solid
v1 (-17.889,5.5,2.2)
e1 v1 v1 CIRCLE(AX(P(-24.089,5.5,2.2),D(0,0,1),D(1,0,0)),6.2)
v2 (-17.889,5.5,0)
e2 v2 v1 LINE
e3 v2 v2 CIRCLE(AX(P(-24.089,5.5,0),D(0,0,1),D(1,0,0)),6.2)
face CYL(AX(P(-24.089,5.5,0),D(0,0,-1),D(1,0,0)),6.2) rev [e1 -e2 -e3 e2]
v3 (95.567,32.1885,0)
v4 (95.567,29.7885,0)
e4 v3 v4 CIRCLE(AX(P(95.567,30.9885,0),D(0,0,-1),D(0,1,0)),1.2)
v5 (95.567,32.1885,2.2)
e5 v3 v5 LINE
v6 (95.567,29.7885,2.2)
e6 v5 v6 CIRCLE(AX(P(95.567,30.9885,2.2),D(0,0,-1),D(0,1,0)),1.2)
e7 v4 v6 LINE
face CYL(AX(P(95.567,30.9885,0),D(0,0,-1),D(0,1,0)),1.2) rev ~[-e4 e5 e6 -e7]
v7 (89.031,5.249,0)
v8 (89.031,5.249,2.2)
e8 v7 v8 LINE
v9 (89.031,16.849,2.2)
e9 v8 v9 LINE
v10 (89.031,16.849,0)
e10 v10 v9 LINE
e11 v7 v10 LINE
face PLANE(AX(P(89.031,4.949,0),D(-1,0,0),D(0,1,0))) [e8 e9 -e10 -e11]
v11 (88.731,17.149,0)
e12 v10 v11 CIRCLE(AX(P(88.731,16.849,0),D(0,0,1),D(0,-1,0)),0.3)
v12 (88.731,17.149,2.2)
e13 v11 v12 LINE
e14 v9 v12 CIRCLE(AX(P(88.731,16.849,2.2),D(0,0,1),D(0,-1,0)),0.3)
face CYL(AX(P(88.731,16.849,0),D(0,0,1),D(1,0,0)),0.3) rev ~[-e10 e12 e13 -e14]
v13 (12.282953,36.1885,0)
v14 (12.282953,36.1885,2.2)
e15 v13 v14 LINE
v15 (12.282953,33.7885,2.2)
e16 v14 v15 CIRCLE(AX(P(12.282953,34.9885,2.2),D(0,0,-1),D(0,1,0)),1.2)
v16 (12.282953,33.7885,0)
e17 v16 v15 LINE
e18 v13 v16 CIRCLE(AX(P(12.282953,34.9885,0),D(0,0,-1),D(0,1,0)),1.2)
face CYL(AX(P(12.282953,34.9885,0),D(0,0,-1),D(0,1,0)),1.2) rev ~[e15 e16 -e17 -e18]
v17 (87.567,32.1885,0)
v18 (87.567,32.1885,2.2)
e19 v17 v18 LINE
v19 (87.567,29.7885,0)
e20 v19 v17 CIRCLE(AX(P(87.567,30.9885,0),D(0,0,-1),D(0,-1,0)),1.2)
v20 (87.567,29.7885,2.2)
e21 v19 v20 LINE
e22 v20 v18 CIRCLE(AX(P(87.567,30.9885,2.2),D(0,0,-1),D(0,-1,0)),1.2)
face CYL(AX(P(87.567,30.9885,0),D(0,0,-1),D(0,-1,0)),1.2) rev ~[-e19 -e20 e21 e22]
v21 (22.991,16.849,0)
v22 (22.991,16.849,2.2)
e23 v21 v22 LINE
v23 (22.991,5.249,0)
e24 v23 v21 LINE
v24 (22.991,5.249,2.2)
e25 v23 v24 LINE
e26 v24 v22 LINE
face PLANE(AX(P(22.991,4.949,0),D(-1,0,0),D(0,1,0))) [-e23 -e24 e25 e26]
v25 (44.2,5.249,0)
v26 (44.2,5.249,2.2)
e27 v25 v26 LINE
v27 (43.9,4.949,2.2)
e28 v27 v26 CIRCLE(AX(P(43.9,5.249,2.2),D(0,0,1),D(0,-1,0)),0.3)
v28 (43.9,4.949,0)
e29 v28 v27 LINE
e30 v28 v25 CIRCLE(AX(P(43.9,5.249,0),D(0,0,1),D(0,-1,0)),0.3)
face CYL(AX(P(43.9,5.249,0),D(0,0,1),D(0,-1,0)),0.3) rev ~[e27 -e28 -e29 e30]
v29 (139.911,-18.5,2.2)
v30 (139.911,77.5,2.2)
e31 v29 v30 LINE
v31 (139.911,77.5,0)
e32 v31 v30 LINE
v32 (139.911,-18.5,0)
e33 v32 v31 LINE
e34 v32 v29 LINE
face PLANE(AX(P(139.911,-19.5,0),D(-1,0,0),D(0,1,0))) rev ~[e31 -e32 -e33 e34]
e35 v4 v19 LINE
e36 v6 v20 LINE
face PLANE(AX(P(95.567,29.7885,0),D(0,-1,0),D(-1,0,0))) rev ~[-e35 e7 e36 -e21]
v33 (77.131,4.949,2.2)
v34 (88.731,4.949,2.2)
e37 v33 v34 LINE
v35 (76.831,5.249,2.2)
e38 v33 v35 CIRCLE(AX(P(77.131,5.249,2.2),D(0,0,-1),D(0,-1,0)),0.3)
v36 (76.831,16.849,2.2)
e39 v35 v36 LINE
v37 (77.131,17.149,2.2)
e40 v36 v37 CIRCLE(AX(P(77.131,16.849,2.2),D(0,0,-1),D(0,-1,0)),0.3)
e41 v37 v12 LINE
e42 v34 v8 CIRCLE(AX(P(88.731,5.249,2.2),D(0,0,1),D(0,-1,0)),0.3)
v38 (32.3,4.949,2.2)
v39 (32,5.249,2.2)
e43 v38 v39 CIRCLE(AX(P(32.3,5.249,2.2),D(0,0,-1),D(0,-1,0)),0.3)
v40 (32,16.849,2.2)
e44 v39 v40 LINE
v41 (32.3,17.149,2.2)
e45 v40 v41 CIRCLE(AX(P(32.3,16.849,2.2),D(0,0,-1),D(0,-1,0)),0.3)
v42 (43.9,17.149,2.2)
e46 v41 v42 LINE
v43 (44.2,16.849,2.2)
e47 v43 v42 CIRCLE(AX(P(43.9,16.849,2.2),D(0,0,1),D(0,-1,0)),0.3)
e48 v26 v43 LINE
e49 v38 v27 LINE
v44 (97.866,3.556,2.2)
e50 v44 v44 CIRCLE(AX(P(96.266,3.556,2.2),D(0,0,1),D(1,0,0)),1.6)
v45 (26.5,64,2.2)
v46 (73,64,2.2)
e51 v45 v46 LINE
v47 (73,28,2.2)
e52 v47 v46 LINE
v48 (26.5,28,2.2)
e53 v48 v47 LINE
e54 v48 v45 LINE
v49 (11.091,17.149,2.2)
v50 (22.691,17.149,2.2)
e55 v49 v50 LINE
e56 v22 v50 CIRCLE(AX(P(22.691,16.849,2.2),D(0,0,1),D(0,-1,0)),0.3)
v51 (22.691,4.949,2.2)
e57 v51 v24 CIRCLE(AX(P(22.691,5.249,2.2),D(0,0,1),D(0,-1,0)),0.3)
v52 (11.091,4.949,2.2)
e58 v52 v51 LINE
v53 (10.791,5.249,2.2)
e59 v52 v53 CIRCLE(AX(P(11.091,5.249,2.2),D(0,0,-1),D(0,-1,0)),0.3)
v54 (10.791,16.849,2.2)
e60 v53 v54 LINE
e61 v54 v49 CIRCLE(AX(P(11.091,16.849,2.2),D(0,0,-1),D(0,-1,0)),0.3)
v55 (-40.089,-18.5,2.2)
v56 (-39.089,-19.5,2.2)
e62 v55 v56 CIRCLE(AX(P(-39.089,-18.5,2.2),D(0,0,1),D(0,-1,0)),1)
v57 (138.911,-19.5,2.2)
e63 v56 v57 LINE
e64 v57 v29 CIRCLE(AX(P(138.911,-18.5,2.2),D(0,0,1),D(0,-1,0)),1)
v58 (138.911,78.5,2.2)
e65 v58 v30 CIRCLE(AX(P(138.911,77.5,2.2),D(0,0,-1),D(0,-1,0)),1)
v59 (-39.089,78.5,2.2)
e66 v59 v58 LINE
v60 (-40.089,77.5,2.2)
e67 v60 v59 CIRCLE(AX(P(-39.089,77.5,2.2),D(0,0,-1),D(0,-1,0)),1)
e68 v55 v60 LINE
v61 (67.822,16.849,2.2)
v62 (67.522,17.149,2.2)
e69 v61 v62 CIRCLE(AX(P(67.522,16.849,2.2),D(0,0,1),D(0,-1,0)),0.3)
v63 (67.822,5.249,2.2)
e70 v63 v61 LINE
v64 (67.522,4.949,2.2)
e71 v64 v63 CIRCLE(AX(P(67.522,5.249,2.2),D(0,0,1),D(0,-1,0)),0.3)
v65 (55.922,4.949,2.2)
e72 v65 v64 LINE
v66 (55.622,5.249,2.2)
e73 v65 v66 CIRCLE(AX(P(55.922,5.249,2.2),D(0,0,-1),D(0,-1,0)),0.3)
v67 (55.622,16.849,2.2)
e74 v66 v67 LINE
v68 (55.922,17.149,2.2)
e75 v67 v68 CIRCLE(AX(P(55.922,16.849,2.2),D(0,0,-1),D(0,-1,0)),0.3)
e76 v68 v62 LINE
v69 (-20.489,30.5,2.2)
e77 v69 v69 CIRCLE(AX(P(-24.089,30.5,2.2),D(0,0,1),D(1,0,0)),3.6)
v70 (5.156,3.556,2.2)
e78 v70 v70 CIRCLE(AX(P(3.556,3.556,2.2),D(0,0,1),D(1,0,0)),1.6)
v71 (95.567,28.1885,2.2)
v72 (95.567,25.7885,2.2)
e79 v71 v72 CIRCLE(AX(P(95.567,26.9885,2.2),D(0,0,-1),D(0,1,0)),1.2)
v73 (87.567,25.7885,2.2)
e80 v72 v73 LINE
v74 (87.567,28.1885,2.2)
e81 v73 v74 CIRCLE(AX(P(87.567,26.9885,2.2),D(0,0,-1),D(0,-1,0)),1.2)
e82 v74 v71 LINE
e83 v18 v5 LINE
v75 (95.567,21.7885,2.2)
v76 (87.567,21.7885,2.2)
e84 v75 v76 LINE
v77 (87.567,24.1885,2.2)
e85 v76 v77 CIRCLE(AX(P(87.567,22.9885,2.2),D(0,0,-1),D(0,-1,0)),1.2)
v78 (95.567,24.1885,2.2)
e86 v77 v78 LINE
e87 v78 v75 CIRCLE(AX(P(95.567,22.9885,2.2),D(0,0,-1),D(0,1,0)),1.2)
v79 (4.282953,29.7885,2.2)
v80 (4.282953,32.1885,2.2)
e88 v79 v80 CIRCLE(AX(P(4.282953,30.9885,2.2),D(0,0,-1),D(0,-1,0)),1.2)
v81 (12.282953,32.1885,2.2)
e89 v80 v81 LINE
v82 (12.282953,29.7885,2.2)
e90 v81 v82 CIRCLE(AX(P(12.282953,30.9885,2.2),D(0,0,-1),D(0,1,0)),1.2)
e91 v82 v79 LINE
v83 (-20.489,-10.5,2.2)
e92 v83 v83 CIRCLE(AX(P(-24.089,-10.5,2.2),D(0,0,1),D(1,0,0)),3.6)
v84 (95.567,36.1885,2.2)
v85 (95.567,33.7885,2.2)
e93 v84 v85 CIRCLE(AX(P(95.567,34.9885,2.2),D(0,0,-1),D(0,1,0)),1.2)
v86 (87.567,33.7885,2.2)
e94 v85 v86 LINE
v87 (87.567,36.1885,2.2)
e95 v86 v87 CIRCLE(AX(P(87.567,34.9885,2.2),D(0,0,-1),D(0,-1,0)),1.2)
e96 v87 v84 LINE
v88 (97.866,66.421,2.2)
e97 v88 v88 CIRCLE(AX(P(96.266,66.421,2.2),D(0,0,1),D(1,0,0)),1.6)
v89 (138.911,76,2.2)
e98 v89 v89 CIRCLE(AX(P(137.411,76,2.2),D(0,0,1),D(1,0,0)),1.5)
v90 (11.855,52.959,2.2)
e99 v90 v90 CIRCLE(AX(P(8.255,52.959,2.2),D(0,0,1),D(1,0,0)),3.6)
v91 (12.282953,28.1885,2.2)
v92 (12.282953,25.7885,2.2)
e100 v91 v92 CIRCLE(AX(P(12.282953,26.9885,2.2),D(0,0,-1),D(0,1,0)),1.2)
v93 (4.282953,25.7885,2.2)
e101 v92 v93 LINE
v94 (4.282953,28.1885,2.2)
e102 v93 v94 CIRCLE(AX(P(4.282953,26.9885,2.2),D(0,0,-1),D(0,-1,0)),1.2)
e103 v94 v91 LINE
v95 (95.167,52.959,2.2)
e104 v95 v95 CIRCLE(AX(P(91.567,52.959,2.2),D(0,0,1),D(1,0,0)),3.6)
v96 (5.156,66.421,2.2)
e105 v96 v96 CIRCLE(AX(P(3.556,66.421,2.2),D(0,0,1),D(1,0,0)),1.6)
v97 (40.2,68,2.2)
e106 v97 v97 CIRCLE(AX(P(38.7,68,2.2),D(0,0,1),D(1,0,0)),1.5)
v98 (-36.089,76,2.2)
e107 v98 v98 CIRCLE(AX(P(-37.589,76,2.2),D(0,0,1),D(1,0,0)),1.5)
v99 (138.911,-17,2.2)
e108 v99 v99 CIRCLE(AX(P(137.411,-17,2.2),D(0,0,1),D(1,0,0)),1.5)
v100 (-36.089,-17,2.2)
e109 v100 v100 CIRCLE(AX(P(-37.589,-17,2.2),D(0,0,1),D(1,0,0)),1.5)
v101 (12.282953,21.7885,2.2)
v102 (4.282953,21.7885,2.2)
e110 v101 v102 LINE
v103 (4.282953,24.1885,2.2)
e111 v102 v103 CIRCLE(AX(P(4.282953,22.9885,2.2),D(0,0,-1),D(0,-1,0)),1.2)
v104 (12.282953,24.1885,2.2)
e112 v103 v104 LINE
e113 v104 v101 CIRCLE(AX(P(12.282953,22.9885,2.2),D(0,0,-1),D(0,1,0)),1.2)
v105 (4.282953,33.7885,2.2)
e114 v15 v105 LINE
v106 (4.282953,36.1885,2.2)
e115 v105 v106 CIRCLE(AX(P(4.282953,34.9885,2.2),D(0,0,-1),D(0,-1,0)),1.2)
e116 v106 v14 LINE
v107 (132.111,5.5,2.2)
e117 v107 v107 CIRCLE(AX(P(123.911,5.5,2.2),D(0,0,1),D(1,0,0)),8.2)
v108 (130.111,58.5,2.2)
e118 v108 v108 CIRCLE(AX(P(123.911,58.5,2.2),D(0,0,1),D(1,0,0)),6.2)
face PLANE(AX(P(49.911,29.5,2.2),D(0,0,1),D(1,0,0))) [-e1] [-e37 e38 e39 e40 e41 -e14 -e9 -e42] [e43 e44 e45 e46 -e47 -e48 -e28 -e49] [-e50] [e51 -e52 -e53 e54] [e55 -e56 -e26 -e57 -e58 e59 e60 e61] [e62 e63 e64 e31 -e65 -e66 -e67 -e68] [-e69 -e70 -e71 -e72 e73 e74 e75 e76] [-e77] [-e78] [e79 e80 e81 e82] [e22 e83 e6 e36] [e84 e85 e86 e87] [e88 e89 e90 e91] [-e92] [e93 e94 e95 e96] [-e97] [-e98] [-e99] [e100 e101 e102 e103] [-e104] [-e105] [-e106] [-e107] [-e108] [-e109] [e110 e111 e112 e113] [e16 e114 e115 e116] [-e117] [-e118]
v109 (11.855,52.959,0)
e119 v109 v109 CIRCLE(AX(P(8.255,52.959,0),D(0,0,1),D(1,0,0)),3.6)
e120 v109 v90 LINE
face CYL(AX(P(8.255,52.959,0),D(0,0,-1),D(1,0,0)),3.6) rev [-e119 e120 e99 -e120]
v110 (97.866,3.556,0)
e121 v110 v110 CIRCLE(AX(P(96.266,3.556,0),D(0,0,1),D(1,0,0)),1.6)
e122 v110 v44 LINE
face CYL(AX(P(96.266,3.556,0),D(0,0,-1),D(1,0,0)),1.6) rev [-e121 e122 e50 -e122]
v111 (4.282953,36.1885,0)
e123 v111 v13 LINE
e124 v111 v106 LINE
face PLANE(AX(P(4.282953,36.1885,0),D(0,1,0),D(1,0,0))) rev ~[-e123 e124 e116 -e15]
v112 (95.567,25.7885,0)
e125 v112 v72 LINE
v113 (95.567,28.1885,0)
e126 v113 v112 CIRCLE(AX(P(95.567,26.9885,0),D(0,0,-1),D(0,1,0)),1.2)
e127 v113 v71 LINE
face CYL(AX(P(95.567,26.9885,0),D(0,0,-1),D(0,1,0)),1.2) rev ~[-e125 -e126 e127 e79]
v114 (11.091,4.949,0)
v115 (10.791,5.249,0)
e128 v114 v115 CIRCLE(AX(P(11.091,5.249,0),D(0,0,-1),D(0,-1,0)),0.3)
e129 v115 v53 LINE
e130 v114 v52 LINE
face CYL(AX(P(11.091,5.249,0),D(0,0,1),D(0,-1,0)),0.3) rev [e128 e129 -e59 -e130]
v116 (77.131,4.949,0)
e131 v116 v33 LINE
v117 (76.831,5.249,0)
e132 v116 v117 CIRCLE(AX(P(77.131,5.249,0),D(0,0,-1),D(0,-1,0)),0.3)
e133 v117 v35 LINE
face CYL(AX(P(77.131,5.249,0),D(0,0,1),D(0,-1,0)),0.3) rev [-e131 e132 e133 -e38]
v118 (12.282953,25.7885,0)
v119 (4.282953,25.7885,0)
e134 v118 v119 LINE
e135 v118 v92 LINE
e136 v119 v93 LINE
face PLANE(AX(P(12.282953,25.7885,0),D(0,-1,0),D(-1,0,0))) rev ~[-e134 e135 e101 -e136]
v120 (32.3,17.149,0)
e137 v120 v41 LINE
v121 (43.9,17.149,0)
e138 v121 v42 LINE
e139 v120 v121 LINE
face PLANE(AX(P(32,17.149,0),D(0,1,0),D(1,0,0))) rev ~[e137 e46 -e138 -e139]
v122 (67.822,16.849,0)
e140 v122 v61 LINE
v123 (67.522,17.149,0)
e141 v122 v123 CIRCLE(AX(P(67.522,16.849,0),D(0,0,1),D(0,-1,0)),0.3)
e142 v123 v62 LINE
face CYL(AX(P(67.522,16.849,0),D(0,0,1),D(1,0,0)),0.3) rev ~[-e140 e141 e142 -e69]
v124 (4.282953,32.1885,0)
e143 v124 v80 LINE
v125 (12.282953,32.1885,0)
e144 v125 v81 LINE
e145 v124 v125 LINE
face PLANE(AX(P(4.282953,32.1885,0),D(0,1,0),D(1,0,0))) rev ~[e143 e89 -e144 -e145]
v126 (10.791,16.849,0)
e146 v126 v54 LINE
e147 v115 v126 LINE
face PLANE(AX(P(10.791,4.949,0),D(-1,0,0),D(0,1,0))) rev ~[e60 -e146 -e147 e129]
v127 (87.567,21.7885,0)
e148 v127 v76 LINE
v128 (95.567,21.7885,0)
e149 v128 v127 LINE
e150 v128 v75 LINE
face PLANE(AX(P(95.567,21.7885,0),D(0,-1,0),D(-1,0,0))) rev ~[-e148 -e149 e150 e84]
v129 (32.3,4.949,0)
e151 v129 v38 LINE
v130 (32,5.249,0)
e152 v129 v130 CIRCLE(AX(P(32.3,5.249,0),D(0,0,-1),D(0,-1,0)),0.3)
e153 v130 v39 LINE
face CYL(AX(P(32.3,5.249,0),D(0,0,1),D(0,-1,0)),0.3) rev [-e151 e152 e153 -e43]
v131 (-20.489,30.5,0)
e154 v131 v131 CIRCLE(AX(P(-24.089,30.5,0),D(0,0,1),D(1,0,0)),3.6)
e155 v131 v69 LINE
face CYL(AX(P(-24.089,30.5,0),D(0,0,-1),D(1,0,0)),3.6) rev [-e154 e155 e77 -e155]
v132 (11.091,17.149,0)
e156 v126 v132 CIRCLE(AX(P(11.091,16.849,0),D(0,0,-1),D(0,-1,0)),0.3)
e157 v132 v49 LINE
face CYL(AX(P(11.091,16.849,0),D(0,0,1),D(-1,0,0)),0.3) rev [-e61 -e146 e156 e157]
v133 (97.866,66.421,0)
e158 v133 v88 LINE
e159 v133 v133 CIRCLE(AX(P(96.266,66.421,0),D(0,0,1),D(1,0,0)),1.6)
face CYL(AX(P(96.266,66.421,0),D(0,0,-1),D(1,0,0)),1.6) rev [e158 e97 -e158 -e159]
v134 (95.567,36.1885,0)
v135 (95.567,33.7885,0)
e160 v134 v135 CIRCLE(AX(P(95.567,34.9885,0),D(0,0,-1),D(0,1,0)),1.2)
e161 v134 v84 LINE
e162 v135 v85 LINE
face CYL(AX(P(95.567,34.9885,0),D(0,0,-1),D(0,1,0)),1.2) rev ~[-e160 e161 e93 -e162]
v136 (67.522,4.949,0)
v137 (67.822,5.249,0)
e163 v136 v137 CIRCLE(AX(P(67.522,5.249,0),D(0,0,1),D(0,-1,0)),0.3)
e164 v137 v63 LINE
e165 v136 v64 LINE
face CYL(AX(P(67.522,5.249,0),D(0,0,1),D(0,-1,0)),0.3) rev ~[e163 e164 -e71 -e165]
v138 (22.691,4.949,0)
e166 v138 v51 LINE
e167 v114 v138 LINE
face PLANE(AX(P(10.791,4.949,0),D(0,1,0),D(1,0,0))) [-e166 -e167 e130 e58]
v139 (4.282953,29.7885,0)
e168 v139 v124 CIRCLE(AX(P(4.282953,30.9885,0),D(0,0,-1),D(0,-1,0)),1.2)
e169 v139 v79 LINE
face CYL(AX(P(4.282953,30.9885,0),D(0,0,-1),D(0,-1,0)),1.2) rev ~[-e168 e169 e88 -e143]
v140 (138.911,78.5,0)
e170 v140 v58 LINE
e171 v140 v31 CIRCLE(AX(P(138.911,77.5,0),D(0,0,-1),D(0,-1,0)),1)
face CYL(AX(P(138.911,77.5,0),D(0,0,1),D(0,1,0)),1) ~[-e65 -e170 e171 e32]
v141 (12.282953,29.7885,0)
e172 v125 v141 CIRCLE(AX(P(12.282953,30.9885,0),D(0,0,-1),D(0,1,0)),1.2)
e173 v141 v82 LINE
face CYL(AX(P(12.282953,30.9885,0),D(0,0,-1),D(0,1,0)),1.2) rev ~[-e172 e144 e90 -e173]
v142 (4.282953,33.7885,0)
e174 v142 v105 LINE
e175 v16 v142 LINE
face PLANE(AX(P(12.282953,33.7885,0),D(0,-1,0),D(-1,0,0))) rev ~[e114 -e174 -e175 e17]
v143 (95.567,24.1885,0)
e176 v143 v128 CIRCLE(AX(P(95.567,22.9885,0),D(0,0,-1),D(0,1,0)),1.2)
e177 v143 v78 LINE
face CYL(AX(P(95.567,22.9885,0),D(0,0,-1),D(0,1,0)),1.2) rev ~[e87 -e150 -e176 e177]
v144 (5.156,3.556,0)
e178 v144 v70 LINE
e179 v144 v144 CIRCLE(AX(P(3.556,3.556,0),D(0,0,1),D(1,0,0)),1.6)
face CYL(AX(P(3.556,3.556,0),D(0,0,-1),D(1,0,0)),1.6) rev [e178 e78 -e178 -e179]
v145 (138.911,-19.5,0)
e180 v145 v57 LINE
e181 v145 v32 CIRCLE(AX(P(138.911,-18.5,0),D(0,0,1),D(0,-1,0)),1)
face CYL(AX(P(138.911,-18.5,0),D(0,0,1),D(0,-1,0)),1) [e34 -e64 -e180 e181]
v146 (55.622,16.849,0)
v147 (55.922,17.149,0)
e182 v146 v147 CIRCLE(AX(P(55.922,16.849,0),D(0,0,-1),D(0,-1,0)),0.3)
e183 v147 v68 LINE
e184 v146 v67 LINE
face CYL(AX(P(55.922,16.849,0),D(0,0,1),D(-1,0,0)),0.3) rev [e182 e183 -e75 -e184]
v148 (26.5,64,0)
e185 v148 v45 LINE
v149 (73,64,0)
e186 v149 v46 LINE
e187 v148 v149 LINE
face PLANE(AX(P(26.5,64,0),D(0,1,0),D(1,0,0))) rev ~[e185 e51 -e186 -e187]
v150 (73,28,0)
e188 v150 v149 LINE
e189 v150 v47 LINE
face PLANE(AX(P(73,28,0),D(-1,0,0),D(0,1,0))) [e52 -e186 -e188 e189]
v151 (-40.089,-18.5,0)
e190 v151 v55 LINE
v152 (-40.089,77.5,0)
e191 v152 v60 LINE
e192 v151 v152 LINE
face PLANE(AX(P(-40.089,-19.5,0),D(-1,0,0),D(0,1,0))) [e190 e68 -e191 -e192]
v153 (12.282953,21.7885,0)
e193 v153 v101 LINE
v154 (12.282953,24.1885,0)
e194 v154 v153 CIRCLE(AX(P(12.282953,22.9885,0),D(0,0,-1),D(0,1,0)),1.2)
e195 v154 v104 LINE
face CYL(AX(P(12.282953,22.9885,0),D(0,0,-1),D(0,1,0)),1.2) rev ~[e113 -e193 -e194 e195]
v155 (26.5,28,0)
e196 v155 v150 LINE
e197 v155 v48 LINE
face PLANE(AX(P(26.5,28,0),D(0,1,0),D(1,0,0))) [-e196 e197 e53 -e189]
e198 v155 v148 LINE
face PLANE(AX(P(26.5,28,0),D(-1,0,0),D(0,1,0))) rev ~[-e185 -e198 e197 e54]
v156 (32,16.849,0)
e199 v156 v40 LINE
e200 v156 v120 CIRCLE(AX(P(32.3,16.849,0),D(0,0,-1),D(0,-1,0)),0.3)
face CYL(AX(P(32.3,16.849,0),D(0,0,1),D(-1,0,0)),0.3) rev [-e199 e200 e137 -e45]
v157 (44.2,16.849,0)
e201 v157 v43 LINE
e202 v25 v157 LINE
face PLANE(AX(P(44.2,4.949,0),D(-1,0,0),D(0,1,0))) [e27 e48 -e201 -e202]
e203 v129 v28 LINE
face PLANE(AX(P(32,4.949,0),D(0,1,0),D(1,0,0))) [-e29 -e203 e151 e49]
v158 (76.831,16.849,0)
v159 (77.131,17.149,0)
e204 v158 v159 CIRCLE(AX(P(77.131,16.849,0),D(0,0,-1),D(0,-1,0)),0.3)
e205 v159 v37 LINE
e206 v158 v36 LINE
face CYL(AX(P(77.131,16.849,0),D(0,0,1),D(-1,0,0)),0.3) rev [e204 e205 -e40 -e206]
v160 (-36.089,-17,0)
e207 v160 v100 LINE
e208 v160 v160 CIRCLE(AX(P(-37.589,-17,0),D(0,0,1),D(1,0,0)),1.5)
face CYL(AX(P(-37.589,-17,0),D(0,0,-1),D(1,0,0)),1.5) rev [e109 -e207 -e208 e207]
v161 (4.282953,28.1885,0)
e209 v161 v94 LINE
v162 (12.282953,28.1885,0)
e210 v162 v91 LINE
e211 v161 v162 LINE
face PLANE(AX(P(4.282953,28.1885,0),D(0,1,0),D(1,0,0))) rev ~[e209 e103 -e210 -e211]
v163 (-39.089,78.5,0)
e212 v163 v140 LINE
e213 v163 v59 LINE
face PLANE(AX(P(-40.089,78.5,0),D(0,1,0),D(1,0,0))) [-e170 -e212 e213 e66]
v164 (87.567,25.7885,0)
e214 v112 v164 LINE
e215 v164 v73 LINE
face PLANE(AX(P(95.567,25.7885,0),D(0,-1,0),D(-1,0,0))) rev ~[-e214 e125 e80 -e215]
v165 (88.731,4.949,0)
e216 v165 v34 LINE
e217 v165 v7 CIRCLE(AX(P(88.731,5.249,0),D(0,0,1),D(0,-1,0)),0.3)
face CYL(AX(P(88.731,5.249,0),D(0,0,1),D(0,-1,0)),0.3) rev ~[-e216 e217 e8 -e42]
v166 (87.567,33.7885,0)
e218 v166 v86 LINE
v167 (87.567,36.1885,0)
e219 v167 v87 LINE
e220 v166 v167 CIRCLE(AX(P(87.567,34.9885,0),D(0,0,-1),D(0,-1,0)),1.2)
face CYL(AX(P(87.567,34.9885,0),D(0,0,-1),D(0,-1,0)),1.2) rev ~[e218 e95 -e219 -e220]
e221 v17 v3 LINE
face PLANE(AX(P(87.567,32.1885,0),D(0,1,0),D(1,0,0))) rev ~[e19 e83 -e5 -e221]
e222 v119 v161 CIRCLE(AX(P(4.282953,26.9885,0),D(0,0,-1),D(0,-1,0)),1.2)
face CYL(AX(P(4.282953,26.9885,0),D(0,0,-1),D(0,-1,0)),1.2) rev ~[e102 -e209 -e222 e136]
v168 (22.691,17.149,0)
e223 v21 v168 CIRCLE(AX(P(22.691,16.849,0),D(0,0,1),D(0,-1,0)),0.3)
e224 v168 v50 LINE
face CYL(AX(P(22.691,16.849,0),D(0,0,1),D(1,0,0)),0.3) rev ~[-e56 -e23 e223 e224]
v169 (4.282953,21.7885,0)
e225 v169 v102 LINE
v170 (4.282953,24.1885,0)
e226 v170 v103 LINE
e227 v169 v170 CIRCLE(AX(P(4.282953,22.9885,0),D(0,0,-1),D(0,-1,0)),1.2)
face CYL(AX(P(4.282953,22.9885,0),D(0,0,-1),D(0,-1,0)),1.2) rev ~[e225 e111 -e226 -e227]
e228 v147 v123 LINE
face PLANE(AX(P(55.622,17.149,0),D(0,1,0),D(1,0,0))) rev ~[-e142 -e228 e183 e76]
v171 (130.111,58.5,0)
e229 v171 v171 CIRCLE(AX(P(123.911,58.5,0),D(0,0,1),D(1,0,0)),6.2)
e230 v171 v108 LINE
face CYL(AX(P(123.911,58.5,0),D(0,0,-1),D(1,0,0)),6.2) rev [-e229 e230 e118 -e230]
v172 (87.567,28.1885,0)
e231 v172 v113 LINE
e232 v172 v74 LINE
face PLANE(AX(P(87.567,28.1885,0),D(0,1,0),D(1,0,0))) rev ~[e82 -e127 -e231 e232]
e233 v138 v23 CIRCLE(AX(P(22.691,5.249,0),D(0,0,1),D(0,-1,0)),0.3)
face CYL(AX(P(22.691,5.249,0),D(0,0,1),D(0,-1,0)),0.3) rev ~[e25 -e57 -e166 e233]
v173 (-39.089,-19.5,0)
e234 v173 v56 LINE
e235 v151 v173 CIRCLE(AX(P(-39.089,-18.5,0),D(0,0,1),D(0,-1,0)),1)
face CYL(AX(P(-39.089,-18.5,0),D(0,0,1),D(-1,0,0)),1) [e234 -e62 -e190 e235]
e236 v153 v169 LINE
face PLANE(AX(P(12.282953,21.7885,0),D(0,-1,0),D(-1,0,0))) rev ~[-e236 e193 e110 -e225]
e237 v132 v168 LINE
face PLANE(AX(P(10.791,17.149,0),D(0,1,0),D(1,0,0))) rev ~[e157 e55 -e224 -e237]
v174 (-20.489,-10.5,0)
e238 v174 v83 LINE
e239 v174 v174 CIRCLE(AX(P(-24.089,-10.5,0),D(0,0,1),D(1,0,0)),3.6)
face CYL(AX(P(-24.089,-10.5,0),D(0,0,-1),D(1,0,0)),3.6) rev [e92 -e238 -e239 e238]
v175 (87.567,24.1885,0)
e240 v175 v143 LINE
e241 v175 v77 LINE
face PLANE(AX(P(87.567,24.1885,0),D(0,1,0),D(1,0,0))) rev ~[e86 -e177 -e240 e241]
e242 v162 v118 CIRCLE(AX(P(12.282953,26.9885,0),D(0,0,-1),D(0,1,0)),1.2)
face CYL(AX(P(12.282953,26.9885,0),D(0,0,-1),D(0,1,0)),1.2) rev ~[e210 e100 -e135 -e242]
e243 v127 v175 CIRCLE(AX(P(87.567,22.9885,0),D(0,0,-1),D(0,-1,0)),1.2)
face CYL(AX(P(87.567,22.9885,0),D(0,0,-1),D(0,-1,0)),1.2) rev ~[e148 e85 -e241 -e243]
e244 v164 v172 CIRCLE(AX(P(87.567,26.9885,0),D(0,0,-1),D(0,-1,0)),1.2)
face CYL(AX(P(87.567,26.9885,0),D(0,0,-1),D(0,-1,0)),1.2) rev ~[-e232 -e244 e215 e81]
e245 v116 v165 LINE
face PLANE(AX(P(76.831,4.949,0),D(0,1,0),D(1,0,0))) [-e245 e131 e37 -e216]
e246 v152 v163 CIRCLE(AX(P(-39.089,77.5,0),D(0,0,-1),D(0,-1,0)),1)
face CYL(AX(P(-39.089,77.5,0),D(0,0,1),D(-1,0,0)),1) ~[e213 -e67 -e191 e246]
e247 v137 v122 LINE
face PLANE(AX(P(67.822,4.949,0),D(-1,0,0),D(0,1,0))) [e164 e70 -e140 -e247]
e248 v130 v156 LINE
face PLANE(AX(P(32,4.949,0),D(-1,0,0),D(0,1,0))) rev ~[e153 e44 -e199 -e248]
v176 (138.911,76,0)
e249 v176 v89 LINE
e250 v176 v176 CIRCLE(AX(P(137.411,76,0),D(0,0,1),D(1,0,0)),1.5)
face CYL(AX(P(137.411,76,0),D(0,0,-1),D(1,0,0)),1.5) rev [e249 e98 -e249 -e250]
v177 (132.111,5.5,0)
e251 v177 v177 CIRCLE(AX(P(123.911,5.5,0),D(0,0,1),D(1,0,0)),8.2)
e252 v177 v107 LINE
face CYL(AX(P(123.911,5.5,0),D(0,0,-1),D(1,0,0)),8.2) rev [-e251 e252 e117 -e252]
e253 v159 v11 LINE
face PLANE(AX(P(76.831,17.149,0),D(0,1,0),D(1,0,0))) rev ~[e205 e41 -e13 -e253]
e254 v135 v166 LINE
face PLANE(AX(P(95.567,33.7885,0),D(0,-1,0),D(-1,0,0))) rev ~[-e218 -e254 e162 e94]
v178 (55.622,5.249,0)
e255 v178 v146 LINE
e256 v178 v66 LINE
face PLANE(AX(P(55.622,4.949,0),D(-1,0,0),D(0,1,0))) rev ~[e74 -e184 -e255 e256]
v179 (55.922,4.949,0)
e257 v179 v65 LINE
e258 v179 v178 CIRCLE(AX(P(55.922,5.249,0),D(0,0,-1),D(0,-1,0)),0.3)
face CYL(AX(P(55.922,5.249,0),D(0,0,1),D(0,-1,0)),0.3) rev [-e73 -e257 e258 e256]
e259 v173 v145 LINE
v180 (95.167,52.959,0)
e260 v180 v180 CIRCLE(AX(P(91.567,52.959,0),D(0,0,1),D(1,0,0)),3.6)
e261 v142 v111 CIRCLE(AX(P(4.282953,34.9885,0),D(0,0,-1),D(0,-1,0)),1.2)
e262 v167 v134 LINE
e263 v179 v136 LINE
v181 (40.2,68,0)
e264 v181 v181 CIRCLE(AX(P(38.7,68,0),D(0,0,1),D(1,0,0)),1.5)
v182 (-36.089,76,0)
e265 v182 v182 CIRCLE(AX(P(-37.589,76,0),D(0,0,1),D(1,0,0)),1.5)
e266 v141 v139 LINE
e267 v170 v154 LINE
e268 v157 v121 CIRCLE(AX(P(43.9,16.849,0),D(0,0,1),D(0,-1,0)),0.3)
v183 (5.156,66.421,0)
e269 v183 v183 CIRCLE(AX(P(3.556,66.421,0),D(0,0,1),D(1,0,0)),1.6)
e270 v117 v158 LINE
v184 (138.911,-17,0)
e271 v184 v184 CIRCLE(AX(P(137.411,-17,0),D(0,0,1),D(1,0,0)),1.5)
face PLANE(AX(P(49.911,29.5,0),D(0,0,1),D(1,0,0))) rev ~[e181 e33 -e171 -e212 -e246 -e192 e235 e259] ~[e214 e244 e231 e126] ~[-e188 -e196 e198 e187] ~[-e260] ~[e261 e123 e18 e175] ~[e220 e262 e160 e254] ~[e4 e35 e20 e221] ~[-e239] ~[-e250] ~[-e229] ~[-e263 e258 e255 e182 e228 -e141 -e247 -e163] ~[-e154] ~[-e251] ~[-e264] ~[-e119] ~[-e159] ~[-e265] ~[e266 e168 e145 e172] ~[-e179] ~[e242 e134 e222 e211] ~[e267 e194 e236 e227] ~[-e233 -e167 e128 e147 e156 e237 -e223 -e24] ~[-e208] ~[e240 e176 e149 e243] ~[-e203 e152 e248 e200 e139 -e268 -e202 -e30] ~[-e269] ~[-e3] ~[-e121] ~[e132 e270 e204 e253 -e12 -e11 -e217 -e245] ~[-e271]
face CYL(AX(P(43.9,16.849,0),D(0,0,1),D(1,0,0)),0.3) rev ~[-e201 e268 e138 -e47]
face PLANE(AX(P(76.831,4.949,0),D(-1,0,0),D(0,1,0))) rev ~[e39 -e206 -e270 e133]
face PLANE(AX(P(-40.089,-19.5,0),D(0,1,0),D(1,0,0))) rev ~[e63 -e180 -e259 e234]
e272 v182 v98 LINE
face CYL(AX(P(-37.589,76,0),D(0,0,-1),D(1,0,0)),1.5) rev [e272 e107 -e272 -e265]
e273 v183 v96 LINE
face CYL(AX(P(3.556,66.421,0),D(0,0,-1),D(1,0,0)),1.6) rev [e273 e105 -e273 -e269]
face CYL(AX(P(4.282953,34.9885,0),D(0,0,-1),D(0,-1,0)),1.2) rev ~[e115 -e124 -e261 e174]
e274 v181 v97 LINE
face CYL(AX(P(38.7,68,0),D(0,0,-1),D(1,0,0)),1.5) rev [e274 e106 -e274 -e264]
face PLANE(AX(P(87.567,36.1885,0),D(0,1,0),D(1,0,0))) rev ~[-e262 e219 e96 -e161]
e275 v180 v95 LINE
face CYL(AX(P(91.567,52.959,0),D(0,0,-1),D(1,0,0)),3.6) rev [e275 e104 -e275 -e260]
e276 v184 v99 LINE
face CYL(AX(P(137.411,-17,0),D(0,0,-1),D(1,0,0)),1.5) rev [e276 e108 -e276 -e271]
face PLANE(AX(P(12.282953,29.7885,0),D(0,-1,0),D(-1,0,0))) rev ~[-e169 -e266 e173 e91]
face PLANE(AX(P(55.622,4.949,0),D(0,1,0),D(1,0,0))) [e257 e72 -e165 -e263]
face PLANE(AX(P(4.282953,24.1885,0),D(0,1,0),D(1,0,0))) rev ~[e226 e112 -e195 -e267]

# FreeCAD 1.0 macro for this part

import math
import FreeCAD as App
import Part
import Sketcher
Q = App.Units.Quantity


def edges_at(feature, points):
    """Names of the edges that pass closest to the given points."""
    edges = feature.Shape.Edges
    near = lambda p: min(range(len(edges)), key=lambda i: edges[i].distToShape(Part.Vertex(*p))[0])
    return sorted({f"Edge{near(p) + 1}" for p in points})

doc = App.newDocument("Part")
params = doc.addObject("Spreadsheet::Sheet", "Params")
for row, (alias, value) in enumerate([
    ("sketch1_diameter", "3 mm"),
    ("sketch1_diameter2", "7.2 mm"),
    ("sketch1_diameter3", "3.2 mm"),
    ("sketch1_diameter4", "12.4 mm"),
    ("sketch1_diameter5", "16.4 mm"),
    ("pad1_length", "2.2 mm"),
    ("fillet_radius", "1 mm"),
    ("fillet2_radius", "0.3 mm"),
], start=1):
    params.set(f"A{row}", alias)
    params.set(f"B{row}", "=" + value)
    params.setAlias(f"B{row}", alias)

body = doc.addObject("PartDesign::Body", "Body")

# Sketch on XY plane
sketch1 = body.newObject("Sketcher::SketchObject", "Sketch")
sketch1.AttachmentSupport = (doc.getObject("XY_Plane"), [""])
sketch1.MapMode = "FlatFace"
sketch1.addGeometry(Part.LineSegment(App.Vector(-40.1, 78.5, 0), App.Vector(-40.1, -19.5, 0)), False)
sketch1.addGeometry(Part.LineSegment(App.Vector(-40.1, -19.5, 0), App.Vector(139.9, -19.5, 0)), False)
sketch1.addGeometry(Part.LineSegment(App.Vector(139.9, -19.5, 0), App.Vector(139.9, 78.5, 0)), False)
sketch1.addGeometry(Part.LineSegment(App.Vector(139.9, 78.5, 0), App.Vector(-40.1, 78.5, 0)), False)
sketch1.addGeometry(Part.Circle(App.Vector(-37.6, -17, 0), App.Vector(0, 0, 1), 1.5), False)
sketch1.addGeometry(Part.Circle(App.Vector(-24.1, -10.5, 0), App.Vector(0, 0, 1), 3.6), False)
sketch1.addGeometry(Part.Circle(App.Vector(3.6, 3.6, 0), App.Vector(0, 0, 1), 1.6), False)
sketch1.addGeometry(Part.Circle(App.Vector(-24.1, 5.5, 0), App.Vector(0, 0, 1), 6.2), False)
sketch1.addGeometry(Part.LineSegment(App.Vector(23, 4.9, 0), App.Vector(10.8, 4.9, 0)), False)
sketch1.addGeometry(Part.LineSegment(App.Vector(10.8, 4.9, 0), App.Vector(10.8, 17.1, 0)), False)
sketch1.addGeometry(Part.LineSegment(App.Vector(10.8, 17.1, 0), App.Vector(23, 17.1, 0)), False)
sketch1.addGeometry(Part.LineSegment(App.Vector(23, 17.1, 0), App.Vector(23, 4.9, 0)), False)
sketch1.addGeometry(Part.LineSegment(App.Vector(44.2, 4.9, 0), App.Vector(32, 4.9, 0)), False)
sketch1.addGeometry(Part.LineSegment(App.Vector(32, 4.9, 0), App.Vector(32, 17.1, 0)), False)
sketch1.addGeometry(Part.LineSegment(App.Vector(32, 17.1, 0), App.Vector(44.2, 17.1, 0)), False)
sketch1.addGeometry(Part.LineSegment(App.Vector(44.2, 17.1, 0), App.Vector(44.2, 4.9, 0)), False)
sketch1.addGeometry(Part.ArcOfCircle(Part.Circle(App.Vector(4.3, 23, 0), App.Vector(0, 0, 1), 1.2), math.radians(90), math.radians(270)), False)
sketch1.addGeometry(Part.LineSegment(App.Vector(4.3, 24.2, 0), App.Vector(12.3, 24.2, 0)), False)
sketch1.addGeometry(Part.ArcOfCircle(Part.Circle(App.Vector(12.3, 23, 0), App.Vector(0, 0, 1), 1.2), math.radians(-90), math.radians(90)), False)
sketch1.addGeometry(Part.LineSegment(App.Vector(12.3, 21.8, 0), App.Vector(4.3, 21.8, 0)), False)
sketch1.addGeometry(Part.ArcOfCircle(Part.Circle(App.Vector(4.3, 27, 0), App.Vector(0, 0, 1), 1.2), math.radians(90), math.radians(270)), False)
sketch1.addGeometry(Part.LineSegment(App.Vector(4.3, 28.2, 0), App.Vector(12.3, 28.2, 0)), False)
sketch1.addGeometry(Part.ArcOfCircle(Part.Circle(App.Vector(12.3, 27, 0), App.Vector(0, 0, 1), 1.2), math.radians(-90), math.radians(90)), False)
sketch1.addGeometry(Part.LineSegment(App.Vector(12.3, 25.8, 0), App.Vector(4.3, 25.8, 0)), False)
sketch1.addGeometry(Part.Circle(App.Vector(137.4, -17, 0), App.Vector(0, 0, 1), 1.5), False)
sketch1.addGeometry(Part.Circle(App.Vector(96.3, 3.6, 0), App.Vector(0, 0, 1), 1.6), False)
sketch1.addGeometry(Part.LineSegment(App.Vector(67.8, 4.9, 0), App.Vector(55.6, 4.9, 0)), False)
sketch1.addGeometry(Part.LineSegment(App.Vector(55.6, 4.9, 0), App.Vector(55.6, 17.1, 0)), False)
sketch1.addGeometry(Part.LineSegment(App.Vector(55.6, 17.1, 0), App.Vector(67.8, 17.1, 0)), False)
sketch1.addGeometry(Part.LineSegment(App.Vector(67.8, 17.1, 0), App.Vector(67.8, 4.9, 0)), False)
sketch1.addGeometry(Part.LineSegment(App.Vector(89, 4.9, 0), App.Vector(76.8, 4.9, 0)), False)
sketch1.addGeometry(Part.LineSegment(App.Vector(76.8, 4.9, 0), App.Vector(76.8, 17.1, 0)), False)
sketch1.addGeometry(Part.LineSegment(App.Vector(76.8, 17.1, 0), App.Vector(89, 17.1, 0)), False)
sketch1.addGeometry(Part.LineSegment(App.Vector(89, 17.1, 0), App.Vector(89, 4.9, 0)), False)
sketch1.addGeometry(Part.ArcOfCircle(Part.Circle(App.Vector(95.6, 23, 0), App.Vector(0, 0, 1), 1.2), math.radians(-90), math.radians(90)), False)
sketch1.addGeometry(Part.LineSegment(App.Vector(95.6, 21.8, 0), App.Vector(87.6, 21.8, 0)), False)
sketch1.addGeometry(Part.ArcOfCircle(Part.Circle(App.Vector(87.6, 23, 0), App.Vector(0, 0, 1), 1.2), math.radians(90), math.radians(270)), False)
sketch1.addGeometry(Part.LineSegment(App.Vector(87.6, 24.2, 0), App.Vector(95.6, 24.2, 0)), False)
sketch1.addGeometry(Part.ArcOfCircle(Part.Circle(App.Vector(95.6, 27, 0), App.Vector(0, 0, 1), 1.2), math.radians(-90), math.radians(90)), False)
sketch1.addGeometry(Part.LineSegment(App.Vector(95.6, 25.8, 0), App.Vector(87.6, 25.8, 0)), False)
sketch1.addGeometry(Part.ArcOfCircle(Part.Circle(App.Vector(87.6, 27, 0), App.Vector(0, 0, 1), 1.2), math.radians(90), math.radians(270)), False)
sketch1.addGeometry(Part.LineSegment(App.Vector(87.6, 28.2, 0), App.Vector(95.6, 28.2, 0)), False)
sketch1.addGeometry(Part.Circle(App.Vector(123.9, 5.5, 0), App.Vector(0, 0, 1), 8.2), False)
sketch1.addGeometry(Part.Circle(App.Vector(-24.1, 30.5, 0), App.Vector(0, 0, 1), 3.6), False)
sketch1.addGeometry(Part.ArcOfCircle(Part.Circle(App.Vector(4.3, 31, 0), App.Vector(0, 0, 1), 1.2), math.radians(90), math.radians(270)), False)
sketch1.addGeometry(Part.LineSegment(App.Vector(4.3, 32.2, 0), App.Vector(12.3, 32.2, 0)), False)
sketch1.addGeometry(Part.ArcOfCircle(Part.Circle(App.Vector(12.3, 31, 0), App.Vector(0, 0, 1), 1.2), math.radians(-90), math.radians(90)), False)
sketch1.addGeometry(Part.LineSegment(App.Vector(12.3, 29.8, 0), App.Vector(4.3, 29.8, 0)), False)
sketch1.addGeometry(Part.ArcOfCircle(Part.Circle(App.Vector(4.3, 35, 0), App.Vector(0, 0, 1), 1.2), math.radians(90), math.radians(270)), False)
sketch1.addGeometry(Part.LineSegment(App.Vector(4.3, 36.2, 0), App.Vector(12.3, 36.2, 0)), False)
sketch1.addGeometry(Part.ArcOfCircle(Part.Circle(App.Vector(12.3, 35, 0), App.Vector(0, 0, 1), 1.2), math.radians(-90), math.radians(90)), False)
sketch1.addGeometry(Part.LineSegment(App.Vector(12.3, 33.8, 0), App.Vector(4.3, 33.8, 0)), False)
sketch1.addGeometry(Part.Circle(App.Vector(8.3, 53, 0), App.Vector(0, 0, 1), 3.6), False)
sketch1.addGeometry(Part.LineSegment(App.Vector(73, 28, 0), App.Vector(26.5, 28, 0)), False)
sketch1.addGeometry(Part.LineSegment(App.Vector(26.5, 28, 0), App.Vector(26.5, 64, 0)), False)
sketch1.addGeometry(Part.LineSegment(App.Vector(26.5, 64, 0), App.Vector(73, 64, 0)), False)
sketch1.addGeometry(Part.LineSegment(App.Vector(73, 64, 0), App.Vector(73, 28, 0)), False)
sketch1.addGeometry(Part.Circle(App.Vector(-37.6, 76, 0), App.Vector(0, 0, 1), 1.5), False)
sketch1.addGeometry(Part.Circle(App.Vector(3.6, 66.4, 0), App.Vector(0, 0, 1), 1.6), False)
sketch1.addGeometry(Part.Circle(App.Vector(38.7, 68, 0), App.Vector(0, 0, 1), 1.5), False)
sketch1.addGeometry(Part.ArcOfCircle(Part.Circle(App.Vector(95.6, 31, 0), App.Vector(0, 0, 1), 1.2), math.radians(-90), math.radians(90)), False)
sketch1.addGeometry(Part.LineSegment(App.Vector(95.6, 29.8, 0), App.Vector(87.6, 29.8, 0)), False)
sketch1.addGeometry(Part.ArcOfCircle(Part.Circle(App.Vector(87.6, 31, 0), App.Vector(0, 0, 1), 1.2), math.radians(90), math.radians(270)), False)
sketch1.addGeometry(Part.LineSegment(App.Vector(87.6, 32.2, 0), App.Vector(95.6, 32.2, 0)), False)
sketch1.addGeometry(Part.ArcOfCircle(Part.Circle(App.Vector(95.6, 35, 0), App.Vector(0, 0, 1), 1.2), math.radians(-90), math.radians(90)), False)
sketch1.addGeometry(Part.LineSegment(App.Vector(95.6, 33.8, 0), App.Vector(87.6, 33.8, 0)), False)
sketch1.addGeometry(Part.ArcOfCircle(Part.Circle(App.Vector(87.6, 35, 0), App.Vector(0, 0, 1), 1.2), math.radians(90), math.radians(270)), False)
sketch1.addGeometry(Part.LineSegment(App.Vector(87.6, 36.2, 0), App.Vector(95.6, 36.2, 0)), False)
sketch1.addGeometry(Part.Circle(App.Vector(91.6, 53, 0), App.Vector(0, 0, 1), 3.6), False)
sketch1.addGeometry(Part.Circle(App.Vector(123.9, 58.5, 0), App.Vector(0, 0, 1), 6.2), False)
sketch1.addGeometry(Part.Circle(App.Vector(96.3, 66.4, 0), App.Vector(0, 0, 1), 1.6), False)
sketch1.addGeometry(Part.Circle(App.Vector(137.4, 76, 0), App.Vector(0, 0, 1), 1.5), False)
sketch1.addConstraint(Sketcher.Constraint("Coincident", 0, 2, 1, 1))
sketch1.addConstraint(Sketcher.Constraint("Coincident", 1, 2, 2, 1))
sketch1.addConstraint(Sketcher.Constraint("Coincident", 2, 2, 3, 1))
sketch1.addConstraint(Sketcher.Constraint("Coincident", 3, 2, 0, 1))
sketch1.addConstraint(Sketcher.Constraint("Coincident", 8, 2, 9, 1))
sketch1.addConstraint(Sketcher.Constraint("Coincident", 9, 2, 10, 1))
sketch1.addConstraint(Sketcher.Constraint("Coincident", 10, 2, 11, 1))
sketch1.addConstraint(Sketcher.Constraint("Coincident", 11, 2, 8, 1))
sketch1.addConstraint(Sketcher.Constraint("Coincident", 12, 2, 13, 1))
sketch1.addConstraint(Sketcher.Constraint("Coincident", 13, 2, 14, 1))
sketch1.addConstraint(Sketcher.Constraint("Coincident", 14, 2, 15, 1))
sketch1.addConstraint(Sketcher.Constraint("Coincident", 15, 2, 12, 1))
sketch1.addConstraint(Sketcher.Constraint("Tangent", 16, 1, 17, 1))
sketch1.addConstraint(Sketcher.Constraint("Tangent", 17, 2, 18, 2))
sketch1.addConstraint(Sketcher.Constraint("Tangent", 18, 1, 19, 1))
sketch1.addConstraint(Sketcher.Constraint("Tangent", 19, 2, 16, 2))
sketch1.addConstraint(Sketcher.Constraint("Tangent", 20, 1, 21, 1))
sketch1.addConstraint(Sketcher.Constraint("Tangent", 21, 2, 22, 2))
sketch1.addConstraint(Sketcher.Constraint("Tangent", 22, 1, 23, 1))
sketch1.addConstraint(Sketcher.Constraint("Tangent", 23, 2, 20, 2))
sketch1.addConstraint(Sketcher.Constraint("Coincident", 26, 2, 27, 1))
sketch1.addConstraint(Sketcher.Constraint("Coincident", 27, 2, 28, 1))
sketch1.addConstraint(Sketcher.Constraint("Coincident", 28, 2, 29, 1))
sketch1.addConstraint(Sketcher.Constraint("Coincident", 29, 2, 26, 1))
sketch1.addConstraint(Sketcher.Constraint("Coincident", 30, 2, 31, 1))
sketch1.addConstraint(Sketcher.Constraint("Coincident", 31, 2, 32, 1))
sketch1.addConstraint(Sketcher.Constraint("Coincident", 32, 2, 33, 1))
sketch1.addConstraint(Sketcher.Constraint("Coincident", 33, 2, 30, 1))
sketch1.addConstraint(Sketcher.Constraint("Tangent", 34, 1, 35, 1))
sketch1.addConstraint(Sketcher.Constraint("Tangent", 35, 2, 36, 2))
sketch1.addConstraint(Sketcher.Constraint("Tangent", 36, 1, 37, 1))
sketch1.addConstraint(Sketcher.Constraint("Tangent", 37, 2, 34, 2))
sketch1.addConstraint(Sketcher.Constraint("Tangent", 38, 1, 39, 1))
sketch1.addConstraint(Sketcher.Constraint("Tangent", 39, 2, 40, 2))
sketch1.addConstraint(Sketcher.Constraint("Tangent", 40, 1, 41, 1))
sketch1.addConstraint(Sketcher.Constraint("Tangent", 41, 2, 38, 2))
sketch1.addConstraint(Sketcher.Constraint("Tangent", 44, 1, 45, 1))
sketch1.addConstraint(Sketcher.Constraint("Tangent", 45, 2, 46, 2))
sketch1.addConstraint(Sketcher.Constraint("Tangent", 46, 1, 47, 1))
sketch1.addConstraint(Sketcher.Constraint("Tangent", 47, 2, 44, 2))
sketch1.addConstraint(Sketcher.Constraint("Tangent", 48, 1, 49, 1))
sketch1.addConstraint(Sketcher.Constraint("Tangent", 49, 2, 50, 2))
sketch1.addConstraint(Sketcher.Constraint("Tangent", 50, 1, 51, 1))
sketch1.addConstraint(Sketcher.Constraint("Tangent", 51, 2, 48, 2))
sketch1.addConstraint(Sketcher.Constraint("Coincident", 53, 2, 54, 1))
sketch1.addConstraint(Sketcher.Constraint("Coincident", 54, 2, 55, 1))
sketch1.addConstraint(Sketcher.Constraint("Coincident", 55, 2, 56, 1))
sketch1.addConstraint(Sketcher.Constraint("Coincident", 56, 2, 53, 1))
sketch1.addConstraint(Sketcher.Constraint("Tangent", 60, 1, 61, 1))
sketch1.addConstraint(Sketcher.Constraint("Tangent", 61, 2, 62, 2))
sketch1.addConstraint(Sketcher.Constraint("Tangent", 62, 1, 63, 1))
sketch1.addConstraint(Sketcher.Constraint("Tangent", 63, 2, 60, 2))
sketch1.addConstraint(Sketcher.Constraint("Tangent", 64, 1, 65, 1))
sketch1.addConstraint(Sketcher.Constraint("Tangent", 65, 2, 66, 2))
sketch1.addConstraint(Sketcher.Constraint("Tangent", 66, 1, 67, 1))
sketch1.addConstraint(Sketcher.Constraint("Tangent", 67, 2, 64, 2))
sketch1.addConstraint(Sketcher.Constraint("Vertical", 0))
sketch1.addConstraint(Sketcher.Constraint("Horizontal", 1))
sketch1.addConstraint(Sketcher.Constraint("Vertical", 2))
sketch1.addConstraint(Sketcher.Constraint("Horizontal", 3))
sketch1.addConstraint(Sketcher.Constraint("Horizontal", 8))
sketch1.addConstraint(Sketcher.Constraint("Vertical", 9))
sketch1.addConstraint(Sketcher.Constraint("Horizontal", 10))
sketch1.addConstraint(Sketcher.Constraint("Vertical", 11))
sketch1.addConstraint(Sketcher.Constraint("Horizontal", 12))
sketch1.addConstraint(Sketcher.Constraint("Vertical", 13))
sketch1.addConstraint(Sketcher.Constraint("Horizontal", 14))
sketch1.addConstraint(Sketcher.Constraint("Vertical", 15))
sketch1.addConstraint(Sketcher.Constraint("Horizontal", 17))
sketch1.addConstraint(Sketcher.Constraint("Horizontal", 19))
sketch1.addConstraint(Sketcher.Constraint("Horizontal", 21))
sketch1.addConstraint(Sketcher.Constraint("Horizontal", 23))
sketch1.addConstraint(Sketcher.Constraint("Horizontal", 26))
sketch1.addConstraint(Sketcher.Constraint("Vertical", 27))
sketch1.addConstraint(Sketcher.Constraint("Horizontal", 28))
sketch1.addConstraint(Sketcher.Constraint("Vertical", 29))
sketch1.addConstraint(Sketcher.Constraint("Horizontal", 30))
sketch1.addConstraint(Sketcher.Constraint("Vertical", 31))
sketch1.addConstraint(Sketcher.Constraint("Horizontal", 32))
sketch1.addConstraint(Sketcher.Constraint("Vertical", 33))
sketch1.addConstraint(Sketcher.Constraint("Horizontal", 35))
sketch1.addConstraint(Sketcher.Constraint("Horizontal", 37))
sketch1.addConstraint(Sketcher.Constraint("Horizontal", 39))
sketch1.addConstraint(Sketcher.Constraint("Horizontal", 41))
sketch1.addConstraint(Sketcher.Constraint("Horizontal", 45))
sketch1.addConstraint(Sketcher.Constraint("Horizontal", 47))
sketch1.addConstraint(Sketcher.Constraint("Horizontal", 49))
sketch1.addConstraint(Sketcher.Constraint("Horizontal", 51))
sketch1.addConstraint(Sketcher.Constraint("Horizontal", 53))
sketch1.addConstraint(Sketcher.Constraint("Vertical", 54))
sketch1.addConstraint(Sketcher.Constraint("Horizontal", 55))
sketch1.addConstraint(Sketcher.Constraint("Vertical", 56))
sketch1.addConstraint(Sketcher.Constraint("Horizontal", 61))
sketch1.addConstraint(Sketcher.Constraint("Horizontal", 63))
sketch1.addConstraint(Sketcher.Constraint("Horizontal", 65))
sketch1.addConstraint(Sketcher.Constraint("Horizontal", 67))
sketch1.addConstraint(Sketcher.Constraint("Equal", 18, 20))
sketch1.addConstraint(Sketcher.Constraint("Equal", 4, 24))
sketch1.addConstraint(Sketcher.Constraint("Equal", 6, 25))
sketch1.addConstraint(Sketcher.Constraint("Equal", 22, 34))
sketch1.addConstraint(Sketcher.Constraint("Equal", 36, 38))
sketch1.addConstraint(Sketcher.Constraint("Equal", 5, 43))
sketch1.addConstraint(Sketcher.Constraint("Equal", 40, 44))
sketch1.addConstraint(Sketcher.Constraint("Equal", 46, 48))
sketch1.addConstraint(Sketcher.Constraint("Equal", 43, 52))
sketch1.addConstraint(Sketcher.Constraint("Equal", 24, 57))
sketch1.addConstraint(Sketcher.Constraint("Equal", 25, 58))
sketch1.addConstraint(Sketcher.Constraint("Equal", 57, 59))
sketch1.addConstraint(Sketcher.Constraint("Equal", 50, 60))
sketch1.addConstraint(Sketcher.Constraint("Equal", 62, 64))
sketch1.addConstraint(Sketcher.Constraint("Equal", 52, 68))
sketch1.addConstraint(Sketcher.Constraint("Equal", 7, 69))
sketch1.addConstraint(Sketcher.Constraint("Equal", 58, 70))
sketch1.addConstraint(Sketcher.Constraint("Equal", 59, 71))
sketch1.addConstraint(Sketcher.Constraint("Horizontal", 4, 3, 24, 3))
sketch1.addConstraint(Sketcher.Constraint("Horizontal", 6, 3, 25, 3))
sketch1.addConstraint(Sketcher.Constraint("Horizontal", 18, 3, 34, 3))
sketch1.addConstraint(Sketcher.Constraint("Horizontal", 22, 3, 38, 3))
sketch1.addConstraint(Sketcher.Constraint("Horizontal", 7, 3, 42, 3))
sketch1.addConstraint(Sketcher.Constraint("Horizontal", 46, 3, 60, 3))
sketch1.addConstraint(Sketcher.Constraint("Horizontal", 50, 3, 64, 3))
sketch1.addConstraint(Sketcher.Constraint("Horizontal", 52, 3, 68, 3))
sketch1.addConstraint(Sketcher.Constraint("Horizontal", 58, 3, 70, 3))
sketch1.addConstraint(Sketcher.Constraint("Horizontal", 57, 3, 71, 3))
sketch1.addConstraint(Sketcher.Constraint("Horizontal", 11, 2, 12, 2))
sketch1.addConstraint(Sketcher.Constraint("Horizontal", 10, 2, 13, 2))
sketch1.addConstraint(Sketcher.Constraint("Horizontal", 15, 2, 26, 2))
sketch1.addConstraint(Sketcher.Constraint("Horizontal", 14, 2, 27, 2))
sketch1.addConstraint(Sketcher.Constraint("Horizontal", 29, 2, 30, 2))
sketch1.addConstraint(Sketcher.Constraint("Horizontal", 28, 2, 31, 2))
sketch1.addConstraint(Sketcher.Constraint("Vertical", 5, 3, 7, 3))
sketch1.addConstraint(Sketcher.Constraint("Vertical", 16, 3, 20, 3))
sketch1.addConstraint(Sketcher.Constraint("Vertical", 18, 3, 22, 3))
sketch1.addConstraint(Sketcher.Constraint("Vertical", 34, 3, 38, 3))
sketch1.addConstraint(Sketcher.Constraint("Vertical", 36, 3, 40, 3))
sketch1.addConstraint(Sketcher.Constraint("Vertical", 7, 3, 43, 3))
sketch1.addConstraint(Sketcher.Constraint("Vertical", 20, 3, 44, 3))
sketch1.addConstraint(Sketcher.Constraint("Vertical", 22, 3, 46, 3))
sketch1.addConstraint(Sketcher.Constraint("Vertical", 44, 3, 48, 3))
sketch1.addConstraint(Sketcher.Constraint("Vertical", 46, 3, 50, 3))
sketch1.addConstraint(Sketcher.Constraint("Vertical", 4, 3, 57, 3))
sketch1.addConstraint(Sketcher.Constraint("Vertical", 6, 3, 58, 3))
sketch1.addConstraint(Sketcher.Constraint("Vertical", 38, 3, 60, 3))
sketch1.addConstraint(Sketcher.Constraint("Vertical", 40, 3, 62, 3))
sketch1.addConstraint(Sketcher.Constraint("Vertical", 60, 3, 64, 3))
sketch1.addConstraint(Sketcher.Constraint("Vertical", 62, 3, 66, 3))
sketch1.addConstraint(Sketcher.Constraint("Vertical", 42, 3, 69, 3))
sketch1.addConstraint(Sketcher.Constraint("Vertical", 25, 3, 70, 3))
sketch1.addConstraint(Sketcher.Constraint("Vertical", 24, 3, 71, 3))
sketch1.addConstraint(Sketcher.Constraint("Equal", 10, 12))
sketch1.addConstraint(Sketcher.Constraint("Equal", 14, 26))
sketch1.addConstraint(Sketcher.Constraint("Equal", 28, 30))
sketch1.addConstraint(Sketcher.Constraint("Equal", 23, 35))
sketch1.addConstraint(Sketcher.Constraint("Equal", 32, 9))
sketch1.addConstraint(Sketcher.Constraint("Diameter", 4, Q("3 mm")))
sketch1.addConstraint(Sketcher.Constraint("Diameter", 5, Q("7.2 mm")))
sketch1.addConstraint(Sketcher.Constraint("Diameter", 6, Q("3.2 mm")))
sketch1.addConstraint(Sketcher.Constraint("Diameter", 7, Q("12.4 mm")))
sketch1.addConstraint(Sketcher.Constraint("Diameter", 42, Q("16.4 mm")))
sketch1.addConstraint(Sketcher.Constraint("Radius", 16, Q("1.2 mm")))
sketch1.addConstraint(Sketcher.Constraint("DistanceX", 1, 1, 1, 2, Q("180 mm")))
sketch1.addConstraint(Sketcher.Constraint("DistanceX", 17, 1, 17, 2, Q("8 mm")))
sketch1.addConstraint(Sketcher.Constraint("DistanceY", 0, 2, 0, 1, Q("98 mm")))
sketch1.addConstraint(Sketcher.Constraint("DistanceY", 54, 1, 54, 2, Q("36 mm")))
sketch1.addConstraint(Sketcher.Constraint("DistanceX", 8, 2, 8, 1, Q("12.2 mm")))
sketch1.addConstraint(Sketcher.Constraint("DistanceX", 53, 2, 53, 1, Q("46.5 mm")))
sketch1.addConstraint(Sketcher.Constraint("DistanceY", 4, 3, -1, 1, Q("17 mm")))
sketch1.addConstraint(Sketcher.Constraint("DistanceY", -1, 1, 57, 3, Q("76 mm")))
sketch1.addConstraint(Sketcher.Constraint("DistanceY", -1, 1, 59, 3, Q("68 mm")))
sketch1.addConstraint(Sketcher.Constraint("DistanceX", -1, 1, 12, 2, Q("32 mm")))
sketch1.addConstraint(Sketcher.Constraint("DistanceY", -1, 1, 53, 2, Q("28 mm")))
sketch1.addConstraint(Sketcher.Constraint("DistanceX", -1, 1, 55, 2, Q("73 mm")))
sketch1.addConstraint(Sketcher.Constraint("DistanceY", 5, 3, -1, 1, Q("10.5 mm")))
sketch1.addConstraint(Sketcher.Constraint("DistanceY", -1, 1, 7, 3, Q("5.5 mm")))
sketch1.addConstraint(Sketcher.Constraint("DistanceY", -1, 1, 43, 3, Q("30.5 mm")))
sketch1.addConstraint(Sketcher.Constraint("DistanceX", -1, 1, 59, 3, Q("38.7 mm")))
sketch1.addConstraint(Sketcher.Constraint("DistanceY", -1, 1, 69, 3, Q("58.5 mm")))
sketch1.addConstraint(Sketcher.Constraint("DistanceY", 0, 2, -1, 1, Q("19.5 mm")))
sketch1.addConstraint(Sketcher.Constraint("DistanceX", 4, 3, -1, 1, Q("37.589 mm")))
sketch1.addConstraint(Sketcher.Constraint("DistanceX", 5, 3, -1, 1, Q("24.089 mm")))
sketch1.addConstraint(Sketcher.Constraint("DistanceX", -1, 1, 6, 3, Q("3.556 mm")))
sketch1.addConstraint(Sketcher.Constraint("DistanceY", -1, 1, 6, 3, Q("3.556 mm")))
sketch1.addConstraint(Sketcher.Constraint("DistanceX", -1, 1, 24, 3, Q("137.411 mm")))
sketch1.addConstraint(Sketcher.Constraint("DistanceX", -1, 1, 25, 3, Q("96.266 mm")))
sketch1.addConstraint(Sketcher.Constraint("DistanceX", -1, 1, 34, 3, Q("95.567 mm")))
sketch1.addConstraint(Sketcher.Constraint("DistanceX", -1, 1, 42, 3, Q("123.911 mm")))
sketch1.addConstraint(Sketcher.Constraint("DistanceX", -1, 1, 52, 3, Q("8.255 mm")))
sketch1.addConstraint(Sketcher.Constraint("DistanceY", -1, 1, 52, 3, Q("52.959 mm")))
sketch1.addConstraint(Sketcher.Constraint("DistanceY", -1, 1, 58, 3, Q("66.421 mm")))
sketch1.addConstraint(Sketcher.Constraint("DistanceX", -1, 1, 68, 3, Q("91.567 mm")))
sketch1.addConstraint(Sketcher.Constraint("DistanceX", 0, 2, -1, 1, Q("40.089 mm")))
sketch1.addConstraint(Sketcher.Constraint("DistanceX", -1, 1, 8, 2, Q("10.791 mm")))
sketch1.addConstraint(Sketcher.Constraint("DistanceY", -1, 1, 8, 2, Q("4.949 mm")))
sketch1.addConstraint(Sketcher.Constraint("DistanceX", -1, 1, 26, 2, Q("55.622 mm")))
sketch1.addConstraint(Sketcher.Constraint("DistanceX", -1, 1, 30, 2, Q("76.831 mm")))
sketch1.addConstraint(Sketcher.Constraint("DistanceY", -1, 1, 16, 3, Q("22.9885 mm")))
sketch1.addConstraint(Sketcher.Constraint("DistanceY", -1, 1, 20, 3, Q("26.9885 mm")))
sketch1.addConstraint(Sketcher.Constraint("DistanceY", -1, 1, 44, 3, Q("30.9885 mm")))
sketch1.addConstraint(Sketcher.Constraint("DistanceY", -1, 1, 48, 3, Q("34.9885 mm")))
sketch1.addConstraint(Sketcher.Constraint("DistanceX", -1, 1, 16, 3, Q("4.282953 mm")))
sketch1.setExpression("Constraints[154]", "Params.sketch1_diameter")
sketch1.setExpression("Constraints[155]", "Params.sketch1_diameter2")
sketch1.setExpression("Constraints[156]", "Params.sketch1_diameter3")
sketch1.setExpression("Constraints[157]", "Params.sketch1_diameter4")
sketch1.setExpression("Constraints[158]", "Params.sketch1_diameter5")
pad1 = body.newObject("PartDesign::Pad", "Pad")
pad1.Profile = sketch1
pad1.setExpression("Length", "Params.pad1_length")
doc.recompute()

fillet = body.newObject("PartDesign::Fillet", "Fillet")
fillet.Base = (pad1, edges_at(pad1, [
    (139.911, -19.5, 1.1),
    (-40.089, -19.5, 1.1),
    (-40.089, 78.5, 1.1),
    (139.911, 78.5, 1.1),
]))
fillet.setExpression("Radius", "Params.fillet_radius")
doc.recompute()

fillet2 = body.newObject("PartDesign::Fillet", "Fillet001")
fillet2.Base = (fillet, edges_at(fillet, [
    (89.031, 4.949, 1.1),
    (89.031, 17.149, 1.1),
    (76.831, 17.149, 1.1),
    (76.831, 4.949, 1.1),
    (22.991, 4.949, 1.1),
    (22.991, 17.149, 1.1),
    (10.791, 17.149, 1.1),
    (10.791, 4.949, 1.1),
    (44.2, 4.949, 1.1),
    (44.2, 17.149, 1.1),
    (32, 17.149, 1.1),
    (32, 4.949, 1.1),
    (67.822, 4.949, 1.1),
    (67.822, 17.149, 1.1),
    (55.622, 17.149, 1.1),
    (55.622, 4.949, 1.1),
]))
fillet2.setExpression("Radius", "Params.fillet2_radius")

doc.recompute()
